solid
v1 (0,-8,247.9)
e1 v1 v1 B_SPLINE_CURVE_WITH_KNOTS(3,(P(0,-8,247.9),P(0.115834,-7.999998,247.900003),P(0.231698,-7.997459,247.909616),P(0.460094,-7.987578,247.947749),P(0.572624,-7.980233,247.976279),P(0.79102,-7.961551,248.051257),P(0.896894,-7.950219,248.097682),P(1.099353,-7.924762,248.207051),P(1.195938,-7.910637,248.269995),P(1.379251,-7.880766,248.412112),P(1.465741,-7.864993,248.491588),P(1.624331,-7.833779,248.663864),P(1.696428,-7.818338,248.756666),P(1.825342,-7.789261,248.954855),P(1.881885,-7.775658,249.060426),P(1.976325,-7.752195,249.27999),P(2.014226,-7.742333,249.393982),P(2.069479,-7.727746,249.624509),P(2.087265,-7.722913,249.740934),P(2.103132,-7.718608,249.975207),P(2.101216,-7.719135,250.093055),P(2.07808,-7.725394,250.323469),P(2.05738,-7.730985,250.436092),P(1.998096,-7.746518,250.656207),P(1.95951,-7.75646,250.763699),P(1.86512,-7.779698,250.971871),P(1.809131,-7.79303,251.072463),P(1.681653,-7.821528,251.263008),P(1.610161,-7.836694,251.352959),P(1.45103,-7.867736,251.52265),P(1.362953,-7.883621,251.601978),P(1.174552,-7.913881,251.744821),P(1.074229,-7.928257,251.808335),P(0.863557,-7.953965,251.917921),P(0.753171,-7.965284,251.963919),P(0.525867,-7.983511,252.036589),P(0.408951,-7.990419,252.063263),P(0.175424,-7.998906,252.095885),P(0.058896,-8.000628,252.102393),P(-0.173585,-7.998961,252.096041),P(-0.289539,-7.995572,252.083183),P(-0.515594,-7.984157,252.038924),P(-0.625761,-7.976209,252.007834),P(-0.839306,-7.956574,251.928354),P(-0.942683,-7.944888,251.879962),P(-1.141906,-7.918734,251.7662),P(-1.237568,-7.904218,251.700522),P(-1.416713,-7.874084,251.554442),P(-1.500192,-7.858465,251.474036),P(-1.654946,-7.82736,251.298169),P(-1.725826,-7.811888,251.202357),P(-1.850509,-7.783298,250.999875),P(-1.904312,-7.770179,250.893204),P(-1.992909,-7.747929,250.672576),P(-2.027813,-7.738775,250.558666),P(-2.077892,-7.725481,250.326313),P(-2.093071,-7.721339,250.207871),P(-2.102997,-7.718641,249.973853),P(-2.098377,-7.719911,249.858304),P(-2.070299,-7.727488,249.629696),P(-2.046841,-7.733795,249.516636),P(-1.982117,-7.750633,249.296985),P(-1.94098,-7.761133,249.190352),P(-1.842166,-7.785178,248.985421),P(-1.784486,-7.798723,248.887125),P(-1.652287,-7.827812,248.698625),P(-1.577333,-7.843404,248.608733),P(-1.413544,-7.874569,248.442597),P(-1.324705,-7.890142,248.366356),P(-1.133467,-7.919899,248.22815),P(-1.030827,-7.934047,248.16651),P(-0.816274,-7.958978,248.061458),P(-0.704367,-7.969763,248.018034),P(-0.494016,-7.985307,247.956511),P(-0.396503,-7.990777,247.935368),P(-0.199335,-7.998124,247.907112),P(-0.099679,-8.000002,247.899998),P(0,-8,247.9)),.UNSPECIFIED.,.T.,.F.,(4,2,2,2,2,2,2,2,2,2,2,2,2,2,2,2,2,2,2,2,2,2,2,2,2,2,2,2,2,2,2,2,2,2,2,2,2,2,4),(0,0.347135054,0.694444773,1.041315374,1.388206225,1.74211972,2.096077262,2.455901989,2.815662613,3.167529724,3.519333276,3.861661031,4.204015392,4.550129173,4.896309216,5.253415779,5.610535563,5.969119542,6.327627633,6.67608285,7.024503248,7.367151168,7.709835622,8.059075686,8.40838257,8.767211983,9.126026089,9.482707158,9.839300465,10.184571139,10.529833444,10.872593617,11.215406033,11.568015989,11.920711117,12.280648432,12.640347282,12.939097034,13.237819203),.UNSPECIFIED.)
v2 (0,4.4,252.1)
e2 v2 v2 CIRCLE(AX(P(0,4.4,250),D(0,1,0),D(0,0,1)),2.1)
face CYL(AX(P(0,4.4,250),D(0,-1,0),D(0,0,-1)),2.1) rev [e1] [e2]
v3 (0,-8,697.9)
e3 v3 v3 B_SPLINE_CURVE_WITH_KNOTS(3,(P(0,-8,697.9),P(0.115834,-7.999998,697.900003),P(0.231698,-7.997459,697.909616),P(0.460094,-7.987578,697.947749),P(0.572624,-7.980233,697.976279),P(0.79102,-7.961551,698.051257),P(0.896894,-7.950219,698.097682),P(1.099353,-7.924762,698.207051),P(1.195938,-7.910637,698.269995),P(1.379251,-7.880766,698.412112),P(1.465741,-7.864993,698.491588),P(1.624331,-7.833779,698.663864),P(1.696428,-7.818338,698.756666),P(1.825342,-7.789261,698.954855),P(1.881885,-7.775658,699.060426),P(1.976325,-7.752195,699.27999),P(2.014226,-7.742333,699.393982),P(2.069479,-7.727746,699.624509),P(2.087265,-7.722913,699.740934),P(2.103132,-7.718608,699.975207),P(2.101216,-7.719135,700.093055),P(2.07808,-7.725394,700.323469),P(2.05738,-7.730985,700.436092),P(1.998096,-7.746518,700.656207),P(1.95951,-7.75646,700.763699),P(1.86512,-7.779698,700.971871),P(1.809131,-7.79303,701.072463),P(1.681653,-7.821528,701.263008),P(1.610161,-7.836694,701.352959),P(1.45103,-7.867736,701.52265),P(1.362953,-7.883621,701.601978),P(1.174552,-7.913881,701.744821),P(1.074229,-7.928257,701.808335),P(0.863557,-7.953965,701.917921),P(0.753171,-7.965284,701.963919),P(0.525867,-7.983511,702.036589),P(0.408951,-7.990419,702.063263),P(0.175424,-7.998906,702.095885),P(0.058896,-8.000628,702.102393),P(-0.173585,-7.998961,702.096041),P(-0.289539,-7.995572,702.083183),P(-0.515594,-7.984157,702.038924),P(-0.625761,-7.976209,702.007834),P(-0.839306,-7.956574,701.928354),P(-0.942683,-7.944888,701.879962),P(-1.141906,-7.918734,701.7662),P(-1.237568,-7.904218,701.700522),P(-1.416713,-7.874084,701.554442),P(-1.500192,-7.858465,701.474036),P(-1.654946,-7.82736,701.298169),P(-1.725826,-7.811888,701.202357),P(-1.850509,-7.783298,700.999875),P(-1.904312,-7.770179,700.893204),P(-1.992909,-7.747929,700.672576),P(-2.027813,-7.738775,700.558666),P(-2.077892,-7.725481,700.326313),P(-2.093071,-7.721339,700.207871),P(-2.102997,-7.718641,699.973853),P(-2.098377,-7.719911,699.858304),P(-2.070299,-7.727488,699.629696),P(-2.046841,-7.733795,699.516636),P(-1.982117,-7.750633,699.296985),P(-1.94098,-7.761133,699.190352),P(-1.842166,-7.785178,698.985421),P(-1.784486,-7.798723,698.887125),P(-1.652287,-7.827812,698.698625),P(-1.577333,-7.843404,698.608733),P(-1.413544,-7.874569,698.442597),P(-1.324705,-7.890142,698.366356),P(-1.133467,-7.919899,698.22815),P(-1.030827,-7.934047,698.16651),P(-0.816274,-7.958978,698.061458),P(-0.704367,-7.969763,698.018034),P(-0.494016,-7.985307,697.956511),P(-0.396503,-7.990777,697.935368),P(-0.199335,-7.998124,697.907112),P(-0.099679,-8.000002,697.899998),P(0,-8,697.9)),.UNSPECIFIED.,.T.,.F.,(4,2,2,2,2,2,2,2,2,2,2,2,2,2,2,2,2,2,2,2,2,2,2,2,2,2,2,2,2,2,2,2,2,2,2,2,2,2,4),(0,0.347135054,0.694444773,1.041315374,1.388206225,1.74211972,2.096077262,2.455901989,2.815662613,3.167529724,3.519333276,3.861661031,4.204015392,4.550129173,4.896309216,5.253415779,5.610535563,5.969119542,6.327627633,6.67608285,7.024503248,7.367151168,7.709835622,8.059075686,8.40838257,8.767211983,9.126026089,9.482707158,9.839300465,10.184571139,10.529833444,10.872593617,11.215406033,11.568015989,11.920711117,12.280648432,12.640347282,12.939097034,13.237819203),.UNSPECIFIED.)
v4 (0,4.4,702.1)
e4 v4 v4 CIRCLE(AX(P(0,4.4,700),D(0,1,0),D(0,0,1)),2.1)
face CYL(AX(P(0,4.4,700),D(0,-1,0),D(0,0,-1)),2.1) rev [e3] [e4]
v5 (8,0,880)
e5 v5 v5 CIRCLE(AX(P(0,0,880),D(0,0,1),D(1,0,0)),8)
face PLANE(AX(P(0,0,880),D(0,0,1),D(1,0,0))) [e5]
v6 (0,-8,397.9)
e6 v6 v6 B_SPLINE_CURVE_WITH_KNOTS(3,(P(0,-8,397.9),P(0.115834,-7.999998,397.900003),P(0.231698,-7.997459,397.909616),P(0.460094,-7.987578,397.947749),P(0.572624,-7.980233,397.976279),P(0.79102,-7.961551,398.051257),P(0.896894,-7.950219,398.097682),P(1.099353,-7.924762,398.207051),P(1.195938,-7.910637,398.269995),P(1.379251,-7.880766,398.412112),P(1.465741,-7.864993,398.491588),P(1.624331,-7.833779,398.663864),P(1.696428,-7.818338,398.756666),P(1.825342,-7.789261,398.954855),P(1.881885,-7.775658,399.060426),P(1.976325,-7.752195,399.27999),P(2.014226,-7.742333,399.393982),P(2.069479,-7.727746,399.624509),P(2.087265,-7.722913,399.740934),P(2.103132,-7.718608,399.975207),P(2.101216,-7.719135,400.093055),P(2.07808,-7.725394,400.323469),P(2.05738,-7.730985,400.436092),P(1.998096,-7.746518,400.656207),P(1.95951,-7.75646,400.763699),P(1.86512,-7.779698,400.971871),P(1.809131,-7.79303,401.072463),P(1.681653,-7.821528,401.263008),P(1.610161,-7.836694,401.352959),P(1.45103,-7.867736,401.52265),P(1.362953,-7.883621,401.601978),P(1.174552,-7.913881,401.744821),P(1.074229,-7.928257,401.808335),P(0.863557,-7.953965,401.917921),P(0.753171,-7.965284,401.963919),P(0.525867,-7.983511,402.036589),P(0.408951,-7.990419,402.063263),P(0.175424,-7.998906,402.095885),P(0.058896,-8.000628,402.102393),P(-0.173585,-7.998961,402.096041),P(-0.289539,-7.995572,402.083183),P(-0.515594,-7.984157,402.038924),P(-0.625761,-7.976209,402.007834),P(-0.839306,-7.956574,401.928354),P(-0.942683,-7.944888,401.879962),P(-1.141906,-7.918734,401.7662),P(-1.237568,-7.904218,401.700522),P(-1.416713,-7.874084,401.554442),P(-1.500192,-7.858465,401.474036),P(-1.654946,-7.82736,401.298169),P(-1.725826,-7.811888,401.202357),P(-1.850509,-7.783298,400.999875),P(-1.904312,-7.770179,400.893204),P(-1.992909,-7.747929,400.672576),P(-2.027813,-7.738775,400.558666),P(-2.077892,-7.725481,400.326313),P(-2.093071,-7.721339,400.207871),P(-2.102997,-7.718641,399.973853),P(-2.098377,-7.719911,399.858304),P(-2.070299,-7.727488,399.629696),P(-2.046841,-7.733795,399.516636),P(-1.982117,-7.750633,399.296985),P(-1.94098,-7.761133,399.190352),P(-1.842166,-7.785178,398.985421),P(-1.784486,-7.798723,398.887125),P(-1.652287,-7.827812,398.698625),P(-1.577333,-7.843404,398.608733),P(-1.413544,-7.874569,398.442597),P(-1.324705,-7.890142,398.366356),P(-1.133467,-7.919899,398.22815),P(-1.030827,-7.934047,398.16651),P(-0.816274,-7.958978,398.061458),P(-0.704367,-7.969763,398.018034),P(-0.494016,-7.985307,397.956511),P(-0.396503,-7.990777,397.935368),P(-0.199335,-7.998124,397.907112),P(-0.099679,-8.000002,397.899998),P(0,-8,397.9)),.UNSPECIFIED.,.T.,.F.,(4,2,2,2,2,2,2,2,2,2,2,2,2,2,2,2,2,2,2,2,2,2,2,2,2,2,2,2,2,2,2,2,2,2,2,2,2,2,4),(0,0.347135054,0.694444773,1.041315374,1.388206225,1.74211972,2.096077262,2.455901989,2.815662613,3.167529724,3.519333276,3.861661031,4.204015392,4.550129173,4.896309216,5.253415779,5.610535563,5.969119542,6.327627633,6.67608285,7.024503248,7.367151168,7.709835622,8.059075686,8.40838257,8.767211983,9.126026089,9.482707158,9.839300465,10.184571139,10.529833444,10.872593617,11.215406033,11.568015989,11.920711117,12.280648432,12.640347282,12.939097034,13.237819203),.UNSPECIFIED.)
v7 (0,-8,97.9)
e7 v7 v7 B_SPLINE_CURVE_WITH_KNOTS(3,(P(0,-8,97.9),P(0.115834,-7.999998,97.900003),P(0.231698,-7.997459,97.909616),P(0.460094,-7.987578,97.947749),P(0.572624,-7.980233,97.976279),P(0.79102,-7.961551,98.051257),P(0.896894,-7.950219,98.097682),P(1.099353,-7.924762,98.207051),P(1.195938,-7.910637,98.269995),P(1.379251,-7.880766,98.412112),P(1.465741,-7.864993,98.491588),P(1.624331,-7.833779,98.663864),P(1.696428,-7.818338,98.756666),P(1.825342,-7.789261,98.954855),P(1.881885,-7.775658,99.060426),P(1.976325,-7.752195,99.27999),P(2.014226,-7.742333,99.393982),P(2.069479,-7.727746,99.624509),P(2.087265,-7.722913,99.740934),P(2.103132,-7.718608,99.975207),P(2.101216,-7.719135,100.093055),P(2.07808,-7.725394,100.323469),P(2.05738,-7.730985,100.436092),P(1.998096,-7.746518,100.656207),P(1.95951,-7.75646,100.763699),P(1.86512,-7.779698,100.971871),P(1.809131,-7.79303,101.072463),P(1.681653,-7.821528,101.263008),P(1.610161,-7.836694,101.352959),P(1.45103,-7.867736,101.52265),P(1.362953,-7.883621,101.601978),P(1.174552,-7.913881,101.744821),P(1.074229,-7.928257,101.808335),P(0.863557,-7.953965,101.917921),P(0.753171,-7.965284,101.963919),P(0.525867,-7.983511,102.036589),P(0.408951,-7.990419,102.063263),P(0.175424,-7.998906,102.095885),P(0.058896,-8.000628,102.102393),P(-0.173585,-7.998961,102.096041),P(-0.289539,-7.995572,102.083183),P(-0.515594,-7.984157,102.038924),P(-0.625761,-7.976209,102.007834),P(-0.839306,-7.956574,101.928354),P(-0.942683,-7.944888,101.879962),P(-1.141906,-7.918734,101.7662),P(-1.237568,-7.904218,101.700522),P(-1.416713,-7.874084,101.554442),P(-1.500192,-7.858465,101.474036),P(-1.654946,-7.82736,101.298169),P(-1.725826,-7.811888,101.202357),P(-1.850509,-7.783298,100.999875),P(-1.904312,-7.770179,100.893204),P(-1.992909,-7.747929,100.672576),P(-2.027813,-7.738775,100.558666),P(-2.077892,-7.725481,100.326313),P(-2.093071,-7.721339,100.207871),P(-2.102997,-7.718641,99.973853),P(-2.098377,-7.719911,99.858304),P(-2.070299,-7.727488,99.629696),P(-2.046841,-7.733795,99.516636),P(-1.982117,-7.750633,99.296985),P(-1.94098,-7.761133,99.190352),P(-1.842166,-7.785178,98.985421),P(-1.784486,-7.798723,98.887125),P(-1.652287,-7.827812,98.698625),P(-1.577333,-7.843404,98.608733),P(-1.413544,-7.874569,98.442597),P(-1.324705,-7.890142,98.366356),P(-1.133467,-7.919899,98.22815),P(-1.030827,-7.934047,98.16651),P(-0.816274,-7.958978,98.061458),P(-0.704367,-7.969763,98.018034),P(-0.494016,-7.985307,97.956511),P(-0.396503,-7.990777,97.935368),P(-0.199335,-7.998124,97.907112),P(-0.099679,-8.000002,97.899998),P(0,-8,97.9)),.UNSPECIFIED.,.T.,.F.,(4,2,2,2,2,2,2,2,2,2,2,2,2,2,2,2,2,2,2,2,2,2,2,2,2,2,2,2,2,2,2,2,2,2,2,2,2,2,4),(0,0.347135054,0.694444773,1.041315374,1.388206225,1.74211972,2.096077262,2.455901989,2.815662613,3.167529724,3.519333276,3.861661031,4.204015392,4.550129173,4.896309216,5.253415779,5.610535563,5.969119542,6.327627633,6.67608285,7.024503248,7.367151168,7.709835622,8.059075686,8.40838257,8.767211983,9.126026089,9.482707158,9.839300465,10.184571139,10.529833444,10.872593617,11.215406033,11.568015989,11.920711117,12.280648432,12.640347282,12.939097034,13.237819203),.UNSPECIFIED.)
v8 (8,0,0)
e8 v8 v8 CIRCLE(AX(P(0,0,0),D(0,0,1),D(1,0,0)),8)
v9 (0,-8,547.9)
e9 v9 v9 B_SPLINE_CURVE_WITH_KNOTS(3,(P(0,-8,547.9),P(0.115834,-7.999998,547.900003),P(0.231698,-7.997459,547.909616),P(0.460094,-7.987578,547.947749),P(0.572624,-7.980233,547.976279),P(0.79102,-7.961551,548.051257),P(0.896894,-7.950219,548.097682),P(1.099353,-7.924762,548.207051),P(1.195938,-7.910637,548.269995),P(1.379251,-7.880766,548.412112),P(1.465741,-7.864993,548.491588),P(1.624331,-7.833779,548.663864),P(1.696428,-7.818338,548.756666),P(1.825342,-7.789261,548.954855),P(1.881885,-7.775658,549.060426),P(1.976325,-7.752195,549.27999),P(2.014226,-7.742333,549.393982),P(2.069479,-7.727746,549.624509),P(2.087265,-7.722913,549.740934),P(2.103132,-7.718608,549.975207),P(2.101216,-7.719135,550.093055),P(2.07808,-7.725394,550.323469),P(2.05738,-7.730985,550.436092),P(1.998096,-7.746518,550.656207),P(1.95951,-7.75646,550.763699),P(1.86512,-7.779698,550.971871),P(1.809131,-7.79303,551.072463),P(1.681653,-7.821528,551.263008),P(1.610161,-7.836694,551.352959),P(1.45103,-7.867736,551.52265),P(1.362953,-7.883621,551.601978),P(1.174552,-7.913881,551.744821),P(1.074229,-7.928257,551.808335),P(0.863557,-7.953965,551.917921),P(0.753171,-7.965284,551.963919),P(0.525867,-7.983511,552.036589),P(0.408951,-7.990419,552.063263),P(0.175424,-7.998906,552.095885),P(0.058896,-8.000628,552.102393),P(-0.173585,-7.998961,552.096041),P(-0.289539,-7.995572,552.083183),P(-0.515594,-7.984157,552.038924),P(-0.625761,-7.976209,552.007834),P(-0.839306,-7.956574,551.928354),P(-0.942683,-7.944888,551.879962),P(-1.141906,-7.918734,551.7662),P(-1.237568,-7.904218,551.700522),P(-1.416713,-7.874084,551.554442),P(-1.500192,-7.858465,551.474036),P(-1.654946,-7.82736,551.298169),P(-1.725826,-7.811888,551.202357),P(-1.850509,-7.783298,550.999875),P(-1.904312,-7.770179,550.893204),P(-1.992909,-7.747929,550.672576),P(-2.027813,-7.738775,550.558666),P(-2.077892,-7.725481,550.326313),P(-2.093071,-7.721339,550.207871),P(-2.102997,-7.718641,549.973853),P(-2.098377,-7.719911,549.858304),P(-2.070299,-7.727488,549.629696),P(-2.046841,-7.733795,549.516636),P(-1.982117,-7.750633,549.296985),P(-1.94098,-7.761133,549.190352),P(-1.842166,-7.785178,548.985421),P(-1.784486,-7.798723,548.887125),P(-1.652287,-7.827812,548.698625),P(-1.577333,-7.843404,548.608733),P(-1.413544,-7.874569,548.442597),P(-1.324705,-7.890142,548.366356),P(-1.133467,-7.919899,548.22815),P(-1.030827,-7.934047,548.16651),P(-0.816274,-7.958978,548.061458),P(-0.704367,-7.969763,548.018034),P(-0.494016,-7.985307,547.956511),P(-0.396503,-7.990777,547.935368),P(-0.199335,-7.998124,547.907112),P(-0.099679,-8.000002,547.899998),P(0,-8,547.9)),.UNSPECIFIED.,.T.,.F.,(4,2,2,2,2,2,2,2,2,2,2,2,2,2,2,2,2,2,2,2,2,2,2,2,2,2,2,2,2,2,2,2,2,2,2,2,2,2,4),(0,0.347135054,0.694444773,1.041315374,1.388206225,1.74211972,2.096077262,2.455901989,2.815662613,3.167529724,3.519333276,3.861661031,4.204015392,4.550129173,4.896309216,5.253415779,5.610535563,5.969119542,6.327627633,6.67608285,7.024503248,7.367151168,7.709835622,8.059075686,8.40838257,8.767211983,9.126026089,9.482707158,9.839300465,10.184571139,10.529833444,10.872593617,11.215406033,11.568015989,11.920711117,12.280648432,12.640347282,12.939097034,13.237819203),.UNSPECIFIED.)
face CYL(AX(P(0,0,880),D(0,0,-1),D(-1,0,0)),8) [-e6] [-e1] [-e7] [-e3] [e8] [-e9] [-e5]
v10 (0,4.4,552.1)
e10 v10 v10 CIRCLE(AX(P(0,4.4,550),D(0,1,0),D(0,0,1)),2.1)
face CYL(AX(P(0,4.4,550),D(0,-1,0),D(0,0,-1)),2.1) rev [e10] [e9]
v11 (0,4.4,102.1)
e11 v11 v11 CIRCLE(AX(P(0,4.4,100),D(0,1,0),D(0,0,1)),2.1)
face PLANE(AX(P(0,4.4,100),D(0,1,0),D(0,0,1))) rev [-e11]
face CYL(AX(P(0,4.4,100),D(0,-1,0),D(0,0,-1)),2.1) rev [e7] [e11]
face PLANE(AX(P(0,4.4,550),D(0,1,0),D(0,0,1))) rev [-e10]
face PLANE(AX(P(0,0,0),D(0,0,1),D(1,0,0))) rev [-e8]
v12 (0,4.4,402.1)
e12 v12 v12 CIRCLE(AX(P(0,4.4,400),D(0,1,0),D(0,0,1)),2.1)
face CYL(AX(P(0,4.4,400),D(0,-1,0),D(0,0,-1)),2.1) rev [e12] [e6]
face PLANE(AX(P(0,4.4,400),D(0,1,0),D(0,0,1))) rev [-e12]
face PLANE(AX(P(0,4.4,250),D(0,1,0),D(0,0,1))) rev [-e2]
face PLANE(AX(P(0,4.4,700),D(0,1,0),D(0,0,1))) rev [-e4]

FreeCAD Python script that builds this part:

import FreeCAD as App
import Part
import Sketcher

V = App.Vector

doc = App.newDocument("Part")
body = doc.addObject("PartDesign::Body", "Body")

sketch1 = body.newObject("Sketcher::SketchObject", "Sketch")
sketch1.AttachmentSupport = (doc.getObject("XY_Plane"), [""])
sketch1.MapMode = "FlatFace"
sketch1.addGeometry(Part.Circle(V(0, 0, 0), V(0, 0, 1), 8), False)
sketch1.addConstraint([
    Sketcher.Constraint("Coincident", 0, 3, -1, 1),
    Sketcher.Constraint("Diameter", 0, 16.0),
])
pad1 = body.newObject("PartDesign::Pad", "Pad")
pad1.Profile = sketch1
pad1.Length = 880

sketch2 = body.newObject("Sketcher::SketchObject", "Sketch001")
sketch2.AttachmentSupport = (doc.getObject("XZ_Plane"), [""])
sketch2.MapMode = "FlatFace"
sketch2.AttachmentOffset = App.Placement(V(0, 0, 8), App.Rotation())
sketch2.addGeometry(Part.Circle(V(0, 100, 0), V(0, 0, 1), 2.1), False)
sketch2.addConstraint([
    Sketcher.Constraint("PointOnObject", 0, 3, -2),
    Sketcher.Constraint("Diameter", 0, 4.2),
    Sketcher.Constraint("DistanceY", -1, 1, 0, 3, 100.0),
])
pocket1 = body.newObject("PartDesign::Pocket", "Pocket")
pocket1.Profile = sketch2
pocket1.Length = 12.4
doc.recompute()

linearpattern = body.newObject("PartDesign::LinearPattern", "LinearPattern")
linearpattern.Originals = [pocket1]
linearpattern.Direction = (doc.getObject("Z_Axis"), [""])
linearpattern.Mode = "offset"
linearpattern.Offset = 150
linearpattern.Occurrences = 5
body.Tip = linearpattern

doc.recompute()
